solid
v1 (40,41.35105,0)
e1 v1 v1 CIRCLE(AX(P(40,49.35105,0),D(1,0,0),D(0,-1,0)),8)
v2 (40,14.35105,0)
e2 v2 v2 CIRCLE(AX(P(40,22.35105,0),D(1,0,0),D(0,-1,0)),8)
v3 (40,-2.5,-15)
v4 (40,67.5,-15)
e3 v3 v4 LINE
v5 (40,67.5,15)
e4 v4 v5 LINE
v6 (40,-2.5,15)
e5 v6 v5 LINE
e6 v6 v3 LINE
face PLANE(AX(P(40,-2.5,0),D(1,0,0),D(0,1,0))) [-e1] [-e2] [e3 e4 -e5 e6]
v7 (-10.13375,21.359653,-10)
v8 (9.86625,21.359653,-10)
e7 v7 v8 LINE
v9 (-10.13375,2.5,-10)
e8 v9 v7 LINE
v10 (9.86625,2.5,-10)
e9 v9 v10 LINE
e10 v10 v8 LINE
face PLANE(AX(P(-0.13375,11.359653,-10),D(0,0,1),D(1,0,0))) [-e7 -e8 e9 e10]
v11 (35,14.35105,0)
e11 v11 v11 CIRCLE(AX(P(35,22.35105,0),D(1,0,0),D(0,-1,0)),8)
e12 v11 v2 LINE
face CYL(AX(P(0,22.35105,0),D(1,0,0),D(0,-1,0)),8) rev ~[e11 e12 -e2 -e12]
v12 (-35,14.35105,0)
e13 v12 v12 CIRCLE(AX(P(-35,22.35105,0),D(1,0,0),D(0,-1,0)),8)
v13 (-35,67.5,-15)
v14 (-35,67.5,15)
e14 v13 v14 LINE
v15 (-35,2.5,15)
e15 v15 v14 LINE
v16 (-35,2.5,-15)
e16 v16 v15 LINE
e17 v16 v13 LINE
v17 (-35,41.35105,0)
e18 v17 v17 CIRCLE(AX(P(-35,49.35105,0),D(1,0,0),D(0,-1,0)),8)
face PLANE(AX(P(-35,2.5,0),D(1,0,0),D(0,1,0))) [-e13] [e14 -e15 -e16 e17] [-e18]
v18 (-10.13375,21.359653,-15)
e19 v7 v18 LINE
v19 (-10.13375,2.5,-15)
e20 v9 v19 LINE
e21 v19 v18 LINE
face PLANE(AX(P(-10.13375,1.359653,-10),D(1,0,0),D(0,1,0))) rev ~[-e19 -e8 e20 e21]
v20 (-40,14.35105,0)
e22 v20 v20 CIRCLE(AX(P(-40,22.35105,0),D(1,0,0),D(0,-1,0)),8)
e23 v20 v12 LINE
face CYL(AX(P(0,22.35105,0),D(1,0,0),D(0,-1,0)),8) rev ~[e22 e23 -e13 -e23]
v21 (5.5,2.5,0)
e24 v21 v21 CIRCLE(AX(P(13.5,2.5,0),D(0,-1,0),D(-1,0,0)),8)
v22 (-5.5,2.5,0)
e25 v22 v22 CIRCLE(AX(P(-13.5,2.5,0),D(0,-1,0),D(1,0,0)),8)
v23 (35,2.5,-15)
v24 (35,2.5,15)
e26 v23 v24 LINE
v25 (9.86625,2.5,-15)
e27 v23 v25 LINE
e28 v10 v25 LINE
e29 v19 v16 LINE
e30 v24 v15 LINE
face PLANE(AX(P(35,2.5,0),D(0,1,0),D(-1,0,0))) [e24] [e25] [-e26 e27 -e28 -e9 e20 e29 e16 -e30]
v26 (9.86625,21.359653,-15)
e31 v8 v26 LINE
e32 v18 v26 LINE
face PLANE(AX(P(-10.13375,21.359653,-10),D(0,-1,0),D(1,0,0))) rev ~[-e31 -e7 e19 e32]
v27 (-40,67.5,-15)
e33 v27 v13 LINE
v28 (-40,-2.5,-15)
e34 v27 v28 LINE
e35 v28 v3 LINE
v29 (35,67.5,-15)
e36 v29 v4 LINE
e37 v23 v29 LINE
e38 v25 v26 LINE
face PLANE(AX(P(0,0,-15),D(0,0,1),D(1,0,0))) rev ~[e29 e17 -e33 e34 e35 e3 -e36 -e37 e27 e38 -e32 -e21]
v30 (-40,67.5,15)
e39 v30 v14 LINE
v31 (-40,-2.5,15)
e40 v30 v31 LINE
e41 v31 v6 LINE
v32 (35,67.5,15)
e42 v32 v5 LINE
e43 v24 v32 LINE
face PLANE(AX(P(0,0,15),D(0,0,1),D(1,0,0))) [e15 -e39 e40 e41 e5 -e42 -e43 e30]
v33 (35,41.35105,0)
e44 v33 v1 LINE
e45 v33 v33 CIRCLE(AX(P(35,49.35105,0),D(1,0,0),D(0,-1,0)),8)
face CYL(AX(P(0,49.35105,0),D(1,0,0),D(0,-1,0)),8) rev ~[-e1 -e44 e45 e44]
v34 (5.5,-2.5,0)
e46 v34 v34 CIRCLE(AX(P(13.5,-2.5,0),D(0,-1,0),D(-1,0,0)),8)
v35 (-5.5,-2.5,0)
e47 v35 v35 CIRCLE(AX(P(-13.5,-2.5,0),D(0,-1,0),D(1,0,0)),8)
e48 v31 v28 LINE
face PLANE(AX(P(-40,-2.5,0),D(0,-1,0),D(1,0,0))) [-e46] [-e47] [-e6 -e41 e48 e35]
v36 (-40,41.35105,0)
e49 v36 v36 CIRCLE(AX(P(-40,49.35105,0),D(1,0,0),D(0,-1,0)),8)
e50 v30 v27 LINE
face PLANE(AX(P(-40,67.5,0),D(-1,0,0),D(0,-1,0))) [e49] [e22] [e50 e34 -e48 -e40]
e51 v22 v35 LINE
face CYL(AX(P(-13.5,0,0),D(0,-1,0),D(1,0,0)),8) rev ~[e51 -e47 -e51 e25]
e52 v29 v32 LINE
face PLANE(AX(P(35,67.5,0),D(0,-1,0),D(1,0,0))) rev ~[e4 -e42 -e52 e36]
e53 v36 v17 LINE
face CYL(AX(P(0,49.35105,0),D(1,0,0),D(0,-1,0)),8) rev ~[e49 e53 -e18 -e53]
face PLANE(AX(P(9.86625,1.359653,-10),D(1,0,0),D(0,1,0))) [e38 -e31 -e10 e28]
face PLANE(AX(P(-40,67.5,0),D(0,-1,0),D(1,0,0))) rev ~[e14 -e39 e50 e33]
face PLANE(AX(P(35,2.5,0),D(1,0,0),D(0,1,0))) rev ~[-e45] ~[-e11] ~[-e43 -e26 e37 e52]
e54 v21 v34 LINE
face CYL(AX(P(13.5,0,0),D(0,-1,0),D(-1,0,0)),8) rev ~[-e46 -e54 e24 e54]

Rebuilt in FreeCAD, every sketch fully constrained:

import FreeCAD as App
import Part
import Sketcher

V = App.Vector

doc = App.newDocument("Part")
params = doc.addObject("Spreadsheet::Sheet", "Params")
for row, (alias, value) in enumerate([
    ("sketch1_width", "5 mm"),
    ("sketch1_width2", "70 mm"),
    ("sketch1_height", "65 mm"),
    ("pad1_length", "30 mm"),
    ("sketch2_diameter", "16 mm"),
    ("pad2_length", "25 mm"),
    ("sketch3_diameter", "16 mm"),
    ("pad3_length", "25 mm"),
    ("sketch4_diameter", "16 mm"),
    ("pad4_length", "100 mm"),
    ("sketch5_diameter", "16 mm"),
    ("pad5_length", "100 mm"),
    ("sketch6_width", "20 mm"),
    ("pad6_length", "5 mm"),
], start=1):
    params.set(f"A{row}", alias)
    params.set(f"B{row}", "=" + value)
    params.setAlias(f"B{row}", alias)

body = doc.addObject("PartDesign::Body", "Body")

# Sketch on XY plane
sketch1 = body.newObject("Sketcher::SketchObject", "Sketch")
sketch1.AttachmentSupport = (doc.getObject("XY_Plane"), [""])
sketch1.MapMode = "FlatFace"
sketch1.addGeometry([
    Part.LineSegment(V(40, -2, 0), V(40, 68, 0)),  # 0
    Part.LineSegment(V(40, 68, 0), V(35, 68, 0)),  # 1
    Part.LineSegment(V(35, 68, 0), V(35, 2, 0)),  # 2
    Part.LineSegment(V(35, 2, 0), V(-35, 2, 0)),  # 3
    Part.LineSegment(V(-35, 2, 0), V(-35, 68, 0)),  # 4
    Part.LineSegment(V(-35, 68, 0), V(-40, 68, 0)),  # 5
    Part.LineSegment(V(-40, 68, 0), V(-40, -2, 0)),  # 6
    Part.LineSegment(V(-40, -2, 0), V(40, -2, 0)),  # 7
], False)
sketch1.addConstraint([
    Sketcher.Constraint("Coincident", 0, 2, 1, 1),
    Sketcher.Constraint("Coincident", 1, 2, 2, 1),
    Sketcher.Constraint("Coincident", 2, 2, 3, 1),
    Sketcher.Constraint("Coincident", 3, 2, 4, 1),
    Sketcher.Constraint("Coincident", 4, 2, 5, 1),
    Sketcher.Constraint("Coincident", 5, 2, 6, 1),
    Sketcher.Constraint("Coincident", 6, 2, 7, 1),
    Sketcher.Constraint("Coincident", 7, 2, 0, 1),
    Sketcher.Constraint("Vertical", 0),
    Sketcher.Constraint("Horizontal", 1),
    Sketcher.Constraint("Vertical", 2),
    Sketcher.Constraint("Horizontal", 3),
    Sketcher.Constraint("Vertical", 4),
    Sketcher.Constraint("Horizontal", 5),
    Sketcher.Constraint("Vertical", 6),
    Sketcher.Constraint("Horizontal", 7),
    Sketcher.Constraint("Symmetric", 1, 2, 4, 2, -2),
    Sketcher.Constraint("Equal", 1, 5),
    Sketcher.Constraint("Equal", 3, 0),
    Sketcher.Constraint("DistanceX", 1, 2, 1, 1, 5.0),
    Sketcher.Constraint("DistanceX", 3, 2, 3, 1, 70.0),
    Sketcher.Constraint("DistanceY", 2, 2, 2, 1, 65.0),
    Sketcher.Constraint("DistanceY", -1, 1, 0, 2, 67.5),
])
sketch1.setExpression("Constraints[19]", "Params.sketch1_width")
sketch1.setExpression("Constraints[20]", "Params.sketch1_width2")
sketch1.setExpression("Constraints[21]", "Params.sketch1_height")
pad1 = body.newObject("PartDesign::Pad", "Pad")
pad1.Profile = sketch1
pad1.setExpression("Length", "Params.pad1_length")
pad1.Midplane = True
body2 = doc.addObject("PartDesign::Body", "Body001")

# Sketch on XZ plane
sketch2 = body2.newObject("Sketcher::SketchObject", "Sketch001")
sketch2.AttachmentSupport = (doc.getObject("XZ_Plane001"), [""])
sketch2.MapMode = "FlatFace"
sketch2.addGeometry(Part.Circle(V(-14, 0, 0), V(0, 0, 1), 8), False)
sketch2.addConstraint([
    Sketcher.Constraint("PointOnObject", 0, 3, -1),
    Sketcher.Constraint("Diameter", 0, 16.0),
    Sketcher.Constraint("DistanceX", 0, 3, -1, 1, 13.5),
])
sketch2.setExpression("Constraints[1]", "Params.sketch2_diameter")
pad2 = body2.newObject("PartDesign::Pad", "Pad001")
pad2.Profile = sketch2
pad2.setExpression("Length", "Params.pad2_length")
pad2.Midplane = True
body3 = doc.addObject("PartDesign::Body", "Body002")

# Sketch on XZ plane
sketch3 = body3.newObject("Sketcher::SketchObject", "Sketch002")
sketch3.AttachmentSupport = (doc.getObject("XZ_Plane002"), [""])
sketch3.MapMode = "FlatFace"
sketch3.addGeometry(Part.Circle(V(14, 0, 0), V(0, 0, 1), 8), False)
sketch3.addConstraint([
    Sketcher.Constraint("PointOnObject", 0, 3, -1),
    Sketcher.Constraint("Diameter", 0, 16.0),
    Sketcher.Constraint("DistanceX", -1, 1, 0, 3, 13.5),
])
sketch3.setExpression("Constraints[1]", "Params.sketch3_diameter")
pad3 = body3.newObject("PartDesign::Pad", "Pad002")
pad3.Profile = sketch3
pad3.setExpression("Length", "Params.pad3_length")
pad3.Midplane = True
doc.recompute()

boolean = body.newObject("PartDesign::Boolean", "Boolean")
boolean.Type = "Cut"
boolean.addObjects([body2])
doc.recompute()

boolean2 = body.newObject("PartDesign::Boolean", "Boolean001")
boolean2.Type = "Cut"
boolean2.addObjects([body3])
body4 = doc.addObject("PartDesign::Body", "Body003")

# Sketch on YZ plane
sketch4 = body4.newObject("Sketcher::SketchObject", "Sketch003")
sketch4.AttachmentSupport = (doc.getObject("YZ_Plane003"), [""])
sketch4.MapMode = "FlatFace"
sketch4.addGeometry(Part.Circle(V(22, 0, 0), V(0, 0, 1), 8), False)
sketch4.addConstraint([
    Sketcher.Constraint("PointOnObject", 0, 3, -1),
    Sketcher.Constraint("Diameter", 0, 16.0),
    Sketcher.Constraint("DistanceX", -1, 1, 0, 3, 22.35105),
])
sketch4.setExpression("Constraints[1]", "Params.sketch4_diameter")
pad4 = body4.newObject("PartDesign::Pad", "Pad003")
pad4.Profile = sketch4
pad4.setExpression("Length", "Params.pad4_length")
pad4.Midplane = True
body5 = doc.addObject("PartDesign::Body", "Body004")

# Sketch on YZ plane
sketch5 = body5.newObject("Sketcher::SketchObject", "Sketch004")
sketch5.AttachmentSupport = (doc.getObject("YZ_Plane004"), [""])
sketch5.MapMode = "FlatFace"
sketch5.addGeometry(Part.Circle(V(49, 0, 0), V(0, 0, 1), 8), False)
sketch5.addConstraint([
    Sketcher.Constraint("PointOnObject", 0, 3, -1),
    Sketcher.Constraint("Diameter", 0, 16.0),
    Sketcher.Constraint("DistanceX", -1, 1, 0, 3, 49.35105),
])
sketch5.setExpression("Constraints[1]", "Params.sketch5_diameter")
pad5 = body5.newObject("PartDesign::Pad", "Pad004")
pad5.Profile = sketch5
pad5.setExpression("Length", "Params.pad5_length")
pad5.Midplane = True
doc.recompute()

boolean3 = body.newObject("PartDesign::Boolean", "Boolean002")
boolean3.Type = "Cut"
boolean3.addObjects([body4])
doc.recompute()

boolean4 = body.newObject("PartDesign::Boolean", "Boolean003")
boolean4.Type = "Cut"
boolean4.addObjects([body5])

# Sketch on XY plane
sketch6 = body.newObject("Sketcher::SketchObject", "Sketch005")
sketch6.AttachmentSupport = (doc.getObject("XY_Plane"), [""])
sketch6.MapMode = "FlatFace"
sketch6.AttachmentOffset = App.Placement(V(0, 0, -10), App.Rotation())
sketch6.addGeometry([
    Part.LineSegment(V(-10, 21, 0), V(-10, 1, 0)),
    Part.LineSegment(V(-10, 1, 0), V(10, 1, 0)),
    Part.LineSegment(V(10, 1, 0), V(10, 21, 0)),
    Part.LineSegment(V(10, 21, 0), V(-10, 21, 0)),
], False)
sketch6.addConstraint([
    Sketcher.Constraint("Coincident", 0, 2, 1, 1),
    Sketcher.Constraint("Coincident", 1, 2, 2, 1),
    Sketcher.Constraint("Coincident", 2, 2, 3, 1),
    Sketcher.Constraint("Coincident", 3, 2, 0, 1),
    Sketcher.Constraint("Vertical", 0),
    Sketcher.Constraint("Horizontal", 1),
    Sketcher.Constraint("Vertical", 2),
    Sketcher.Constraint("Horizontal", 3),
    Sketcher.Constraint("Equal", 3, 0),
    Sketcher.Constraint("DistanceX", 1, 1, 1, 2, 20.0),
    Sketcher.Constraint("DistanceX", 0, 2, -1, 1, 10.13375),
    Sketcher.Constraint("DistanceY", -1, 1, 0, 2, 1.359653),
])
sketch6.setExpression("Constraints[9]", "Params.sketch6_width")
pad6 = body.newObject("PartDesign::Pad", "Pad005")
pad6.Profile = sketch6
pad6.setExpression("Length", "Params.pad6_length")
pad6.Reversed = True

doc.recompute()
